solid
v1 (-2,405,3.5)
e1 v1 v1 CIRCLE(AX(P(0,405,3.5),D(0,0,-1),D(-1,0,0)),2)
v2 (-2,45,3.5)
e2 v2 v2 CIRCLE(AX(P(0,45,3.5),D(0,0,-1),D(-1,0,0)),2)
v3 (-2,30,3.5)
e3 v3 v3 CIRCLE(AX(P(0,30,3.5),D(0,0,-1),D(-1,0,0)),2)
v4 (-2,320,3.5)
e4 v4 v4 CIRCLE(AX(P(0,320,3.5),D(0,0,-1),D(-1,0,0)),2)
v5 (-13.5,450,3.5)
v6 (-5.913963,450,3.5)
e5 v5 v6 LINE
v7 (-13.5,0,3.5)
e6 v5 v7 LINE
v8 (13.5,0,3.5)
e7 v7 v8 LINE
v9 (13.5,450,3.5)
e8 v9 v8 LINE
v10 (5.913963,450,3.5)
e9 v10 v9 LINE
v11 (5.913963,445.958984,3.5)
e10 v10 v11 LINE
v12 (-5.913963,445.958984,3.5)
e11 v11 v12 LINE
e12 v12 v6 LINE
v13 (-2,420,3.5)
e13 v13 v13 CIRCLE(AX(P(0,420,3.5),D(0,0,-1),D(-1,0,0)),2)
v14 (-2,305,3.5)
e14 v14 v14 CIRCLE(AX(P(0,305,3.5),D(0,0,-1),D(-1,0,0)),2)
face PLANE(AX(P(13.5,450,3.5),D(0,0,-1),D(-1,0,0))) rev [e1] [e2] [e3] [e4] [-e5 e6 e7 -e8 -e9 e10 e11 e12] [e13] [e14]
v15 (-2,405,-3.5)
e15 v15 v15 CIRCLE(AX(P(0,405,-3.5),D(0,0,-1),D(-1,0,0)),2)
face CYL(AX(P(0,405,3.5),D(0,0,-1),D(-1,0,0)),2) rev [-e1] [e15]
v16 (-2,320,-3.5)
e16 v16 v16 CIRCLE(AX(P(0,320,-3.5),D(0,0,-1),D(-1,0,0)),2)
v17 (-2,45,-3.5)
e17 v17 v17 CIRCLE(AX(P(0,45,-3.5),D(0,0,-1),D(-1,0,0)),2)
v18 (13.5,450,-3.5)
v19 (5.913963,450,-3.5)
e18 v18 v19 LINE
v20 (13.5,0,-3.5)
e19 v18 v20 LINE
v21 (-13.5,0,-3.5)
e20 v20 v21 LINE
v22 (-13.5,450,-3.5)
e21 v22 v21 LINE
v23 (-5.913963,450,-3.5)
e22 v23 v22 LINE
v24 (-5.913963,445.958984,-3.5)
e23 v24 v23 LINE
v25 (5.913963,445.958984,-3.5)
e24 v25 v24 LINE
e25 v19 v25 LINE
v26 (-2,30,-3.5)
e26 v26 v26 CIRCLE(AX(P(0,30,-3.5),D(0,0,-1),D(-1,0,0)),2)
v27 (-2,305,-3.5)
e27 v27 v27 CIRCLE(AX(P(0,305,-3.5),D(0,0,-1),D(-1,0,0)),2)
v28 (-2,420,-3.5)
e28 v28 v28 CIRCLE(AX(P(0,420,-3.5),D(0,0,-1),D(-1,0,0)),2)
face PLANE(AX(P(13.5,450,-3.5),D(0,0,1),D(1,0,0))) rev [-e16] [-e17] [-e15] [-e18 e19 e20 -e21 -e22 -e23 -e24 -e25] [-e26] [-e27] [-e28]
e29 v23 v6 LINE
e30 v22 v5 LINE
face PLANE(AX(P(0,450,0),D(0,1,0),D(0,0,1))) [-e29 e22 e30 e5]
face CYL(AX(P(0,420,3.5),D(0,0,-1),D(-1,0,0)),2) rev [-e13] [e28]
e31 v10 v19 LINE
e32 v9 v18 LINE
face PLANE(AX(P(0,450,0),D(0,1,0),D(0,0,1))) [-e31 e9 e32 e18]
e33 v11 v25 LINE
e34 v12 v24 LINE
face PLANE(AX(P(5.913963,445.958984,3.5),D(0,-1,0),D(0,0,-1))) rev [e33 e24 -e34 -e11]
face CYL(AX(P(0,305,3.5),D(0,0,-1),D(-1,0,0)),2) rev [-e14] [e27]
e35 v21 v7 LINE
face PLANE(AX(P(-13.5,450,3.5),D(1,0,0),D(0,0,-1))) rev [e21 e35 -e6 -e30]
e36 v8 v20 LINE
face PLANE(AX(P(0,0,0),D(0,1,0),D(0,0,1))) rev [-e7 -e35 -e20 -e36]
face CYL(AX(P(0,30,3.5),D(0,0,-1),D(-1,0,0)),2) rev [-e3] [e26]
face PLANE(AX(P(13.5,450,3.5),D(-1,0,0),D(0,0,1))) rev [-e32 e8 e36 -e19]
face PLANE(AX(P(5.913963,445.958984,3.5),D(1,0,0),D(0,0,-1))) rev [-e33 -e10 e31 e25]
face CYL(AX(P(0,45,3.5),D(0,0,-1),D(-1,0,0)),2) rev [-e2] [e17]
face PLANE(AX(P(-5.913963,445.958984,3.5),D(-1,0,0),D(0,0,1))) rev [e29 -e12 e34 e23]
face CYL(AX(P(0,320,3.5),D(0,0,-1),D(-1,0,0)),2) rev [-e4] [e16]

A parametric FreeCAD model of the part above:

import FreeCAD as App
import Part
import Sketcher
from FreeCAD import Vector
Q = App.Units.Quantity

doc = App.newDocument("Part")
params = doc.addObject("Spreadsheet::Sheet", "Params")
for row, (alias, value) in enumerate([
    ("sketch1_width", "27 mm"),
    ("sketch1_height", "7 mm"),
    ("pad1_length", "450 mm"),
    ("sketch3_diameter", "4 mm"),
], start=1):
    params.set(f"A{row}", alias)
    params.set(f"B{row}", "=" + value)
    params.setAlias(f"B{row}", alias)

body = doc.addObject("PartDesign::Body", "Body")

sketch1 = body.newObject("Sketcher::SketchObject", "Sketch")
sketch1.AttachmentSupport = (doc.getObject("XZ_Plane"), [""])
sketch1.MapMode = "FlatFace"
sketch1.addGeometry(Part.LineSegment(Vector(-14, -4, 0), Vector(-14, 4, 0)), False)
sketch1.addGeometry(Part.LineSegment(Vector(-14, 4, 0), Vector(14, 4, 0)), False)
sketch1.addGeometry(Part.LineSegment(Vector(14, 4, 0), Vector(14, -4, 0)), False)
sketch1.addGeometry(Part.LineSegment(Vector(14, -4, 0), Vector(-14, -4, 0)), False)
sketch1.addConstraint(Sketcher.Constraint("Coincident", 0, 2, 1, 1))
sketch1.addConstraint(Sketcher.Constraint("Coincident", 1, 2, 2, 1))
sketch1.addConstraint(Sketcher.Constraint("Coincident", 2, 2, 3, 1))
sketch1.addConstraint(Sketcher.Constraint("Coincident", 3, 2, 0, 1))
sketch1.addConstraint(Sketcher.Constraint("Vertical", 0))
sketch1.addConstraint(Sketcher.Constraint("Horizontal", 1))
sketch1.addConstraint(Sketcher.Constraint("Vertical", 2))
sketch1.addConstraint(Sketcher.Constraint("Horizontal", 3))
sketch1.addConstraint(Sketcher.Constraint("Symmetric", 0, 2, 2, 2, -1, 1))
sketch1.addConstraint(Sketcher.Constraint("DistanceX", 1, 1, 1, 2, Q("27 mm")))
sketch1.addConstraint(Sketcher.Constraint("DistanceY", 0, 1, 0, 2, Q("7 mm")))
sketch1.setExpression("Constraints[9]", "Params.sketch1_width")
sketch1.setExpression("Constraints[10]", "Params.sketch1_height")
pad1 = body.newObject("PartDesign::Pad", "Pad")
pad1.Profile = sketch1
pad1.setExpression("Length", "Params.pad1_length")
pad1.Reversed = True

sketch2 = body.newObject("Sketcher::SketchObject", "Sketch001")
sketch2.AttachmentSupport = (doc.getObject("XY_Plane"), [""])
sketch2.MapMode = "FlatFace"
sketch2.AttachmentOffset = App.Placement(Vector(0, 0, -3.5), App.Rotation())
sketch2.addGeometry(Part.LineSegment(Vector(6, 454, 0), Vector(6, 446, 0)), False)
sketch2.addGeometry(Part.LineSegment(Vector(6, 446, 0), Vector(-6, 446, 0)), False)
sketch2.addGeometry(Part.LineSegment(Vector(-6, 446, 0), Vector(-6, 454, 0)), False)
sketch2.addGeometry(Part.LineSegment(Vector(-6, 454, 0), Vector(6, 454, 0)), False)
sketch2.addConstraint(Sketcher.Constraint("Coincident", 0, 2, 1, 1))
sketch2.addConstraint(Sketcher.Constraint("Coincident", 1, 2, 2, 1))
sketch2.addConstraint(Sketcher.Constraint("Coincident", 2, 2, 3, 1))
sketch2.addConstraint(Sketcher.Constraint("Coincident", 3, 2, 0, 1))
sketch2.addConstraint(Sketcher.Constraint("Vertical", 0))
sketch2.addConstraint(Sketcher.Constraint("Horizontal", 1))
sketch2.addConstraint(Sketcher.Constraint("Vertical", 2))
sketch2.addConstraint(Sketcher.Constraint("Horizontal", 3))
sketch2.addConstraint(Sketcher.Constraint("DistanceX", 1, 2, 1, 1, Q("11.827926 mm")))
sketch2.addConstraint(Sketcher.Constraint("DistanceY", 0, 2, 0, 1, Q("8.082033 mm")))
sketch2.addConstraint(Sketcher.Constraint("DistanceX", -1, 1, 0, 2, Q("5.913963 mm")))
sketch2.addConstraint(Sketcher.Constraint("DistanceY", -1, 1, 0, 2, Q("445.958984 mm")))
pocket1 = body.newObject("PartDesign::Pocket", "Pocket")
pocket1.Profile = sketch2
pocket1.Type = "ThroughAll"
pocket1.Reversed = True

sketch3 = body.newObject("Sketcher::SketchObject", "Sketch002")
sketch3.AttachmentSupport = (doc.getObject("XY_Plane"), [""])
sketch3.MapMode = "FlatFace"
sketch3.AttachmentOffset = App.Placement(Vector(0, 0, -3.5), App.Rotation())
sketch3.addGeometry(Part.Circle(Vector(0, 420, 0), Vector(0, 0, 1), 2), False)
sketch3.addGeometry(Part.Circle(Vector(0, 405, 0), Vector(0, 0, 1), 2), False)
sketch3.addGeometry(Part.Circle(Vector(0, 320, 0), Vector(0, 0, 1), 2), False)
sketch3.addGeometry(Part.Circle(Vector(0, 305, 0), Vector(0, 0, 1), 2), False)
sketch3.addGeometry(Part.Circle(Vector(0, 30, 0), Vector(0, 0, 1), 2), False)
sketch3.addGeometry(Part.Circle(Vector(0, 45, 0), Vector(0, 0, 1), 2), False)
sketch3.addConstraint(Sketcher.Constraint("Equal", 0, 1))
sketch3.addConstraint(Sketcher.Constraint("Equal", 1, 2))
sketch3.addConstraint(Sketcher.Constraint("Equal", 2, 3))
sketch3.addConstraint(Sketcher.Constraint("Equal", 3, 4))
sketch3.addConstraint(Sketcher.Constraint("Equal", 4, 5))
sketch3.addConstraint(Sketcher.Constraint("PointOnObject", 0, 3, -2))
sketch3.addConstraint(Sketcher.Constraint("PointOnObject", 1, 3, -2))
sketch3.addConstraint(Sketcher.Constraint("PointOnObject", 2, 3, -2))
sketch3.addConstraint(Sketcher.Constraint("PointOnObject", 3, 3, -2))
sketch3.addConstraint(Sketcher.Constraint("PointOnObject", 4, 3, -2))
sketch3.addConstraint(Sketcher.Constraint("PointOnObject", 5, 3, -2))
sketch3.addConstraint(Sketcher.Constraint("Diameter", 0, Q("4 mm")))
sketch3.addConstraint(Sketcher.Constraint("DistanceY", -1, 1, 0, 3, Q("420 mm")))
sketch3.addConstraint(Sketcher.Constraint("DistanceY", -1, 1, 1, 3, Q("405 mm")))
sketch3.addConstraint(Sketcher.Constraint("DistanceY", -1, 1, 2, 3, Q("320 mm")))
sketch3.addConstraint(Sketcher.Constraint("DistanceY", -1, 1, 3, 3, Q("305 mm")))
sketch3.addConstraint(Sketcher.Constraint("DistanceY", -1, 1, 4, 3, Q("30 mm")))
sketch3.addConstraint(Sketcher.Constraint("DistanceY", -1, 1, 5, 3, Q("45 mm")))
sketch3.setExpression("Constraints[11]", "Params.sketch3_diameter")
pocket2 = body.newObject("PartDesign::Pocket", "Pocket001")
pocket2.Profile = sketch3
pocket2.Type = "ThroughAll"
pocket2.Reversed = True

doc.recompute()
